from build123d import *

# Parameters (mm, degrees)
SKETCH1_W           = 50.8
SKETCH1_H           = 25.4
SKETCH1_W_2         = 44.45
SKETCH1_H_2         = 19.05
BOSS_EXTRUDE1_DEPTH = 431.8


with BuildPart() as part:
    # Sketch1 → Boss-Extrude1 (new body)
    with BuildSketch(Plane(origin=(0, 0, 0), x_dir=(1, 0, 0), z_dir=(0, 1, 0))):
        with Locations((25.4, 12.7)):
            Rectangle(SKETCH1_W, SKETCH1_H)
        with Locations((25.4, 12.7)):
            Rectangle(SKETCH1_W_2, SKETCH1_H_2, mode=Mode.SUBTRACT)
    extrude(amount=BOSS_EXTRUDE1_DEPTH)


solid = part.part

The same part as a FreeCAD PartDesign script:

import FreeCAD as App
import Part
import Sketcher
from FreeCAD import Vector
Q = App.Units.Quantity

doc = App.newDocument("Part")
body = doc.addObject("PartDesign::Body", "Body")

# Sketch on XZ plane
sketch1 = body.newObject("Sketcher::SketchObject", "Sketch")
sketch1.AttachmentSupport = (doc.getObject("XZ_Plane"), [""])
sketch1.MapMode = "FlatFace"
sketch1.addGeometry([
    Part.LineSegment(Vector(0, -25.4, 0), Vector(0, 0, 0)),  # 0
    Part.LineSegment(Vector(0, 0, 0), Vector(50.8, 0, 0)),  # 1
    Part.LineSegment(Vector(50.8, 0, 0), Vector(50.8, -25.4, 0)),  # 2
    Part.LineSegment(Vector(50.8, -25.4, 0), Vector(0, -25.4, 0)),  # 3
    Part.LineSegment(Vector(47.625, -3.175, 0), Vector(3.175, -3.175, 0)),  # 4
    Part.LineSegment(Vector(3.175, -3.175, 0), Vector(3.175, -22.225, 0)),  # 5
    Part.LineSegment(Vector(3.175, -22.225, 0), Vector(47.625, -22.225, 0)),  # 6
    Part.LineSegment(Vector(47.625, -22.225, 0), Vector(47.625, -3.175, 0)),  # 7
], False)
sketch1.addConstraint([
    Sketcher.Constraint("Coincident", 0, 2, 1, 1),
    Sketcher.Constraint("Coincident", 1, 2, 2, 1),
    Sketcher.Constraint("Coincident", 2, 2, 3, 1),
    Sketcher.Constraint("Coincident", 3, 2, 0, 1),
    Sketcher.Constraint("Coincident", 4, 2, 5, 1),
    Sketcher.Constraint("Coincident", 5, 2, 6, 1),
    Sketcher.Constraint("Coincident", 6, 2, 7, 1),
    Sketcher.Constraint("Coincident", 7, 2, 4, 1),
    Sketcher.Constraint("Vertical", 0),
    Sketcher.Constraint("Horizontal", 1),
    Sketcher.Constraint("Vertical", 2),
    Sketcher.Constraint("Horizontal", 3),
    Sketcher.Constraint("Horizontal", 4),
    Sketcher.Constraint("Vertical", 5),
    Sketcher.Constraint("Horizontal", 6),
    Sketcher.Constraint("Vertical", 7),
    Sketcher.Constraint("Coincident", 0, 2, -1, 1),
    Sketcher.Constraint("DistanceX", 1, 1, 1, 2, Q("2 in")),
    Sketcher.Constraint("DistanceY", 0, 1, 0, 2, Q("1 in")),
    Sketcher.Constraint("DistanceX", 4, 2, 4, 1, Q("1.75 in")),
    Sketcher.Constraint("DistanceY", 5, 2, 5, 1, Q("0.75 in")),
    Sketcher.Constraint("DistanceX", -1, 1, 4, 2, Q("0.125 in")),
    Sketcher.Constraint("DistanceY", 4, 2, -1, 1, Q("0.125 in")),
])
pad1 = body.newObject("PartDesign::Pad", "Pad")
pad1.Profile = sketch1
pad1.Length = Q("17 in")
pad1.Reversed = True

doc.recompute()
